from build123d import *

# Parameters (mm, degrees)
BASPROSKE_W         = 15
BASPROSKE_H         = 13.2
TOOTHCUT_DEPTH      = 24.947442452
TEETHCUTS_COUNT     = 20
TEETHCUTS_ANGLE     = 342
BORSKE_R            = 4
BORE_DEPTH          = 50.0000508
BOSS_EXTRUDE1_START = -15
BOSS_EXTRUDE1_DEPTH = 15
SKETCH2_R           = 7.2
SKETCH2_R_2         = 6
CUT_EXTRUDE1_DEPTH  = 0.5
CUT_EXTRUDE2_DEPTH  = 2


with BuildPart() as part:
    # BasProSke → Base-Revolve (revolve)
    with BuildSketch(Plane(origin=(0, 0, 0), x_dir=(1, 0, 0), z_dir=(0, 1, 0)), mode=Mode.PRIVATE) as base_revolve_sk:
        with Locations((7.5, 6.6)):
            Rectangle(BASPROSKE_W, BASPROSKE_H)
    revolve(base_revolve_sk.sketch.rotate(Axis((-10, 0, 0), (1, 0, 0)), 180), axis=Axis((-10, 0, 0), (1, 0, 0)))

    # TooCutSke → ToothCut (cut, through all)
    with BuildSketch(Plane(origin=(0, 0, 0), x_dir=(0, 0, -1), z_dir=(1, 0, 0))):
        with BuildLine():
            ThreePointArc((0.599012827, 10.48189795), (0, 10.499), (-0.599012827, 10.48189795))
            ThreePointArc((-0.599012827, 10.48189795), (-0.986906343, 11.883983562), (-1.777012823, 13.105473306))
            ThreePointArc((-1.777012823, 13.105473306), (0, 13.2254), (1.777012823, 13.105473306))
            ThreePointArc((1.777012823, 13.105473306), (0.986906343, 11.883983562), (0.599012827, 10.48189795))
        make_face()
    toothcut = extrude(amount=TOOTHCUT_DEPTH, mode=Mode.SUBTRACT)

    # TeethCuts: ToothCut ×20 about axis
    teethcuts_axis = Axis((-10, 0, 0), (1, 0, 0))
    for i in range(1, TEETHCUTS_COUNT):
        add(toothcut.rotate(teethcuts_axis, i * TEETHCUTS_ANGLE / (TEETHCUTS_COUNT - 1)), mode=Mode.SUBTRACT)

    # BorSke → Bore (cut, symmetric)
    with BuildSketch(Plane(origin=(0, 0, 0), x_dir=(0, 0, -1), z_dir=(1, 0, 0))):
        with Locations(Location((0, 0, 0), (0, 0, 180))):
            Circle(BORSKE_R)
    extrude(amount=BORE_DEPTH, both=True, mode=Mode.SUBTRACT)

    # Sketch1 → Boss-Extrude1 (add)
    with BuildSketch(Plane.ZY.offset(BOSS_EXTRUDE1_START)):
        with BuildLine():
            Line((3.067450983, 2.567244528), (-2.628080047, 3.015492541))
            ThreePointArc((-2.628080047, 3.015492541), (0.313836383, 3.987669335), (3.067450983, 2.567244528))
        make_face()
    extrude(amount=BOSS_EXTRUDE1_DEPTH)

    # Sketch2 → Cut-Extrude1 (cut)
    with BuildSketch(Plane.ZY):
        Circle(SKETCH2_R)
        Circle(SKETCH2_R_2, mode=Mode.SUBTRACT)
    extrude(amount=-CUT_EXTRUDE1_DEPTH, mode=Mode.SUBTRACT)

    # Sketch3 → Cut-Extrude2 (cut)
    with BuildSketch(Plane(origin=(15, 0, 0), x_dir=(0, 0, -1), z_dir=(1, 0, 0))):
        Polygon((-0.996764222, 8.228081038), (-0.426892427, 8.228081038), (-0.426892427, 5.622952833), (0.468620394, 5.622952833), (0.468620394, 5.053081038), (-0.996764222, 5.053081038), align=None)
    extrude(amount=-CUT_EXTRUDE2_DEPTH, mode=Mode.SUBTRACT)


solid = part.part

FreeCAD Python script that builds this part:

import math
import FreeCAD as App
import Part
import Sketcher
Q = App.Units.Quantity

doc = App.newDocument("Part")
body = doc.addObject("PartDesign::Body", "Body")

sketch1 = doc.addObject("Sketcher::SketchObject", "Sketch")
body.addObject(sketch1)
sketch1.AttachmentSupport = (doc.XZ_Plane, [""])
sketch1.MapMode = "FlatFace"
sketch1.addGeometry([
    Part.LineSegment(App.Vector(0, -13, 0), App.Vector(0, 0, 0)),
    Part.LineSegment(App.Vector(0, 0, 0), App.Vector(15, 0, 0)),
    Part.LineSegment(App.Vector(15, 0, 0), App.Vector(15, -13, 0)),
    Part.LineSegment(App.Vector(15, -13, 0), App.Vector(0, -13, 0)),
], False)
sketch1.addConstraint([
    Sketcher.Constraint("Coincident", 0, 2, 1, 1),
    Sketcher.Constraint("Coincident", 1, 2, 2, 1),
    Sketcher.Constraint("Coincident", 2, 2, 3, 1),
    Sketcher.Constraint("Coincident", 3, 2, 0, 1),
    Sketcher.Constraint("Vertical", 0),
    Sketcher.Constraint("Horizontal", 1),
    Sketcher.Constraint("Vertical", 2),
    Sketcher.Constraint("Horizontal", 3),
    Sketcher.Constraint("Coincident", 0, 2, -1, 1),
    Sketcher.Constraint("DistanceX", 1, 1, 1, 2, Q("15 mm")),
    Sketcher.Constraint("DistanceY", 0, 1, 0, 2, Q("13.2 mm")),
])
revolution = doc.addObject("PartDesign::Revolution", "Revolution")
body.addObject(revolution)
revolution.Profile = sketch1
revolution.ReferenceAxis = (sketch1, ["H_Axis"])
revolution.Angle = 360

sketch2 = doc.addObject("Sketcher::SketchObject", "Sketch001")
body.addObject(sketch2)
sketch2.AttachmentSupport = (doc.YZ_Plane, [""])
sketch2.MapMode = "FlatFace"
sketch2.addGeometry([
    Part.ArcOfCircle(Part.Circle(App.Vector(0, 0, 0), App.Vector(0, 0, 1), 10.5), math.radians(-3.27), math.radians(3.27)),
    Part.ArcOfCircle(Part.Circle(App.Vector(9.9, -5.4, 0), App.Vector(0, 0, 1), 4.8), math.radians(48), math.radians(83)),
    Part.ArcOfCircle(Part.Circle(App.Vector(0, 0, 0), App.Vector(0, 0, 1), 13.2), math.radians(-7.72), math.radians(7.72)),
    Part.ArcOfCircle(Part.Circle(App.Vector(9.9, 5.4, 0), App.Vector(0, 0, 1), 4.8), math.radians(-83), math.radians(-48)),
], False)
sketch2.addConstraint([
    Sketcher.Constraint("Coincident", 0, 1, 1, 2),
    Sketcher.Constraint("Coincident", 1, 1, 2, 1),
    Sketcher.Constraint("Coincident", 2, 2, 3, 2),
    Sketcher.Constraint("Coincident", 3, 1, 0, 2),
    Sketcher.Constraint("Coincident", 0, 3, -1, 1),
    Sketcher.Constraint("Coincident", 2, 3, -1, 1),
    Sketcher.Constraint("Equal", 1, 3),
    Sketcher.Constraint("Symmetric", 1, 3, 3, 3, -1),
    Sketcher.Constraint("Radius", 1, Q("4.8 mm")),
    Sketcher.Constraint("Radius", 0, Q("10.499 mm")),
    Sketcher.Constraint("Radius", 2, Q("13.2254 mm")),
    Sketcher.Constraint("DistanceY", 1, 1, 0, 1, Q("1.178 mm")),
    Sketcher.Constraint("DistanceY", 0, 1, 3, 3, Q("5.96477 mm")),
])
pocket1 = doc.addObject("PartDesign::Pocket", "Pocket")
body.addObject(pocket1)
pocket1.Profile = sketch2
pocket1.Type = "ThroughAll"
pocket1.Reversed = True
doc.recompute()

polarpattern = doc.addObject("PartDesign::PolarPattern", "PolarPattern")
body.addObject(polarpattern)
polarpattern.Originals = [pocket1]
polarpattern.Axis = (doc.X_Axis, [""])
polarpattern.Angle = 360
polarpattern.Occurrences = 20
body.Tip = polarpattern

sketch3 = doc.addObject("Sketcher::SketchObject", "Sketch002")
body.addObject(sketch3)
sketch3.AttachmentSupport = (doc.YZ_Plane, [""])
sketch3.MapMode = "FlatFace"
sketch3.addGeometry(Part.Circle(App.Vector(0, 0, 0), App.Vector(0, 0, 1), 4), False)
sketch3.addConstraint([
    Sketcher.Constraint("Coincident", 0, 3, -1, 1),
    Sketcher.Constraint("Diameter", 0, Q("8 mm")),
])
pocket2 = doc.addObject("PartDesign::Pocket", "Pocket001")
body.addObject(pocket2)
pocket2.Profile = sketch3
pocket2.Length = 100.000102
pocket2.Midplane = True

sketch4 = doc.addObject("Sketcher::SketchObject", "Sketch003")
body.addObject(sketch4)
sketch4.AttachmentSupport = (doc.YZ_Plane, [""])
sketch4.MapMode = "FlatFace"
sketch4.AttachmentOffset = App.Placement(App.Vector(0, 0, 15), App.Rotation())
sketch4.addGeometry([
    Part.LineSegment(App.Vector(3, -2.6, 0), App.Vector(2.6, 3.1, 0)),
    Part.ArcOfCircle(Part.Circle(App.Vector(0, 0, 0), App.Vector(0, 0, 1), 4), math.radians(-41), math.radians(50)),
], False)
sketch4.addConstraint([
    Sketcher.Constraint("Coincident", 0, 1, 1, 1),
    Sketcher.Constraint("Coincident", 1, 2, 0, 2),
    Sketcher.Constraint("Coincident", 1, 3, -1, 1),
    Sketcher.Constraint("Radius", 1, Q("4 mm")),
    Sketcher.Constraint("Angle", 0, Q("94.5 deg")),
    Sketcher.Constraint("DistanceY", 0, 1, -1, 1, Q("2.62808 mm")),
])
pad1 = doc.addObject("PartDesign::Pad", "Pad")
body.addObject(pad1)
pad1.Profile = sketch4
pad1.Length = 15
pad1.Reversed = True

sketch5 = doc.addObject("Sketcher::SketchObject", "Sketch004")
body.addObject(sketch5)
sketch5.AttachmentSupport = (doc.YZ_Plane, [""])
sketch5.MapMode = "FlatFace"
sketch5.addGeometry([
    Part.Circle(App.Vector(0, 0, 0), App.Vector(0, 0, 1), 7),
    Part.Circle(App.Vector(0, 0, 0), App.Vector(0, 0, 1), 6),
], False)
sketch5.addConstraint([
    Sketcher.Constraint("Coincident", 0, 3, -1, 1),
    Sketcher.Constraint("Coincident", 1, 3, -1, 1),
    Sketcher.Constraint("Diameter", 1, Q("12 mm")),
    Sketcher.Constraint("Diameter", 0, Q("14.4 mm")),
])
pocket3 = doc.addObject("PartDesign::Pocket", "Pocket002")
body.addObject(pocket3)
pocket3.Profile = sketch5
pocket3.Length = 0.5
pocket3.Reversed = True

sketch6 = doc.addObject("Sketcher::SketchObject", "Sketch005")
body.addObject(sketch6)
sketch6.AttachmentSupport = (doc.YZ_Plane, [""])
sketch6.MapMode = "FlatFace"
sketch6.AttachmentOffset = App.Placement(App.Vector(0, 0, 15), App.Rotation())
sketch6.addGeometry([
    Part.LineSegment(App.Vector(8.2, 0.4, 0), App.Vector(8.2, 1, 0)),
    Part.LineSegment(App.Vector(8.2, 1, 0), App.Vector(5.1, 1, 0)),
    Part.LineSegment(App.Vector(5.1, 1, 0), App.Vector(5.1, -0.5, 0)),
    Part.LineSegment(App.Vector(5.1, -0.5, 0), App.Vector(5.6, -0.5, 0)),
    Part.LineSegment(App.Vector(5.6, -0.5, 0), App.Vector(5.6, 0.4, 0)),
    Part.LineSegment(App.Vector(5.6, 0.4, 0), App.Vector(8.2, 0.4, 0)),
], False)
sketch6.addConstraint([
    Sketcher.Constraint("Coincident", 0, 2, 1, 1),
    Sketcher.Constraint("Coincident", 1, 2, 2, 1),
    Sketcher.Constraint("Coincident", 2, 2, 3, 1),
    Sketcher.Constraint("Coincident", 3, 2, 4, 1),
    Sketcher.Constraint("Coincident", 4, 2, 5, 1),
    Sketcher.Constraint("Coincident", 5, 2, 0, 1),
    Sketcher.Constraint("Vertical", 0),
    Sketcher.Constraint("Horizontal", 1),
    Sketcher.Constraint("Vertical", 2),
    Sketcher.Constraint("Horizontal", 3),
    Sketcher.Constraint("Vertical", 4),
    Sketcher.Constraint("Horizontal", 5),
    Sketcher.Constraint("Equal", 3, 0),
    Sketcher.Constraint("DistanceX", 1, 2, 1, 1, Q("3.175 mm")),
    Sketcher.Constraint("DistanceX", 3, 1, 3, 2, Q("0.569872 mm")),
    Sketcher.Constraint("DistanceY", 2, 2, 2, 1, Q("1.465385 mm")),
    Sketcher.Constraint("DistanceX", -1, 1, 0, 2, Q("8.228081 mm")),
    Sketcher.Constraint("DistanceY", 2, 2, -1, 1, Q("0.46862 mm")),
])
pocket4 = doc.addObject("PartDesign::Pocket", "Pocket003")
body.addObject(pocket4)
pocket4.Profile = sketch6
pocket4.Length = 2

doc.recompute()
